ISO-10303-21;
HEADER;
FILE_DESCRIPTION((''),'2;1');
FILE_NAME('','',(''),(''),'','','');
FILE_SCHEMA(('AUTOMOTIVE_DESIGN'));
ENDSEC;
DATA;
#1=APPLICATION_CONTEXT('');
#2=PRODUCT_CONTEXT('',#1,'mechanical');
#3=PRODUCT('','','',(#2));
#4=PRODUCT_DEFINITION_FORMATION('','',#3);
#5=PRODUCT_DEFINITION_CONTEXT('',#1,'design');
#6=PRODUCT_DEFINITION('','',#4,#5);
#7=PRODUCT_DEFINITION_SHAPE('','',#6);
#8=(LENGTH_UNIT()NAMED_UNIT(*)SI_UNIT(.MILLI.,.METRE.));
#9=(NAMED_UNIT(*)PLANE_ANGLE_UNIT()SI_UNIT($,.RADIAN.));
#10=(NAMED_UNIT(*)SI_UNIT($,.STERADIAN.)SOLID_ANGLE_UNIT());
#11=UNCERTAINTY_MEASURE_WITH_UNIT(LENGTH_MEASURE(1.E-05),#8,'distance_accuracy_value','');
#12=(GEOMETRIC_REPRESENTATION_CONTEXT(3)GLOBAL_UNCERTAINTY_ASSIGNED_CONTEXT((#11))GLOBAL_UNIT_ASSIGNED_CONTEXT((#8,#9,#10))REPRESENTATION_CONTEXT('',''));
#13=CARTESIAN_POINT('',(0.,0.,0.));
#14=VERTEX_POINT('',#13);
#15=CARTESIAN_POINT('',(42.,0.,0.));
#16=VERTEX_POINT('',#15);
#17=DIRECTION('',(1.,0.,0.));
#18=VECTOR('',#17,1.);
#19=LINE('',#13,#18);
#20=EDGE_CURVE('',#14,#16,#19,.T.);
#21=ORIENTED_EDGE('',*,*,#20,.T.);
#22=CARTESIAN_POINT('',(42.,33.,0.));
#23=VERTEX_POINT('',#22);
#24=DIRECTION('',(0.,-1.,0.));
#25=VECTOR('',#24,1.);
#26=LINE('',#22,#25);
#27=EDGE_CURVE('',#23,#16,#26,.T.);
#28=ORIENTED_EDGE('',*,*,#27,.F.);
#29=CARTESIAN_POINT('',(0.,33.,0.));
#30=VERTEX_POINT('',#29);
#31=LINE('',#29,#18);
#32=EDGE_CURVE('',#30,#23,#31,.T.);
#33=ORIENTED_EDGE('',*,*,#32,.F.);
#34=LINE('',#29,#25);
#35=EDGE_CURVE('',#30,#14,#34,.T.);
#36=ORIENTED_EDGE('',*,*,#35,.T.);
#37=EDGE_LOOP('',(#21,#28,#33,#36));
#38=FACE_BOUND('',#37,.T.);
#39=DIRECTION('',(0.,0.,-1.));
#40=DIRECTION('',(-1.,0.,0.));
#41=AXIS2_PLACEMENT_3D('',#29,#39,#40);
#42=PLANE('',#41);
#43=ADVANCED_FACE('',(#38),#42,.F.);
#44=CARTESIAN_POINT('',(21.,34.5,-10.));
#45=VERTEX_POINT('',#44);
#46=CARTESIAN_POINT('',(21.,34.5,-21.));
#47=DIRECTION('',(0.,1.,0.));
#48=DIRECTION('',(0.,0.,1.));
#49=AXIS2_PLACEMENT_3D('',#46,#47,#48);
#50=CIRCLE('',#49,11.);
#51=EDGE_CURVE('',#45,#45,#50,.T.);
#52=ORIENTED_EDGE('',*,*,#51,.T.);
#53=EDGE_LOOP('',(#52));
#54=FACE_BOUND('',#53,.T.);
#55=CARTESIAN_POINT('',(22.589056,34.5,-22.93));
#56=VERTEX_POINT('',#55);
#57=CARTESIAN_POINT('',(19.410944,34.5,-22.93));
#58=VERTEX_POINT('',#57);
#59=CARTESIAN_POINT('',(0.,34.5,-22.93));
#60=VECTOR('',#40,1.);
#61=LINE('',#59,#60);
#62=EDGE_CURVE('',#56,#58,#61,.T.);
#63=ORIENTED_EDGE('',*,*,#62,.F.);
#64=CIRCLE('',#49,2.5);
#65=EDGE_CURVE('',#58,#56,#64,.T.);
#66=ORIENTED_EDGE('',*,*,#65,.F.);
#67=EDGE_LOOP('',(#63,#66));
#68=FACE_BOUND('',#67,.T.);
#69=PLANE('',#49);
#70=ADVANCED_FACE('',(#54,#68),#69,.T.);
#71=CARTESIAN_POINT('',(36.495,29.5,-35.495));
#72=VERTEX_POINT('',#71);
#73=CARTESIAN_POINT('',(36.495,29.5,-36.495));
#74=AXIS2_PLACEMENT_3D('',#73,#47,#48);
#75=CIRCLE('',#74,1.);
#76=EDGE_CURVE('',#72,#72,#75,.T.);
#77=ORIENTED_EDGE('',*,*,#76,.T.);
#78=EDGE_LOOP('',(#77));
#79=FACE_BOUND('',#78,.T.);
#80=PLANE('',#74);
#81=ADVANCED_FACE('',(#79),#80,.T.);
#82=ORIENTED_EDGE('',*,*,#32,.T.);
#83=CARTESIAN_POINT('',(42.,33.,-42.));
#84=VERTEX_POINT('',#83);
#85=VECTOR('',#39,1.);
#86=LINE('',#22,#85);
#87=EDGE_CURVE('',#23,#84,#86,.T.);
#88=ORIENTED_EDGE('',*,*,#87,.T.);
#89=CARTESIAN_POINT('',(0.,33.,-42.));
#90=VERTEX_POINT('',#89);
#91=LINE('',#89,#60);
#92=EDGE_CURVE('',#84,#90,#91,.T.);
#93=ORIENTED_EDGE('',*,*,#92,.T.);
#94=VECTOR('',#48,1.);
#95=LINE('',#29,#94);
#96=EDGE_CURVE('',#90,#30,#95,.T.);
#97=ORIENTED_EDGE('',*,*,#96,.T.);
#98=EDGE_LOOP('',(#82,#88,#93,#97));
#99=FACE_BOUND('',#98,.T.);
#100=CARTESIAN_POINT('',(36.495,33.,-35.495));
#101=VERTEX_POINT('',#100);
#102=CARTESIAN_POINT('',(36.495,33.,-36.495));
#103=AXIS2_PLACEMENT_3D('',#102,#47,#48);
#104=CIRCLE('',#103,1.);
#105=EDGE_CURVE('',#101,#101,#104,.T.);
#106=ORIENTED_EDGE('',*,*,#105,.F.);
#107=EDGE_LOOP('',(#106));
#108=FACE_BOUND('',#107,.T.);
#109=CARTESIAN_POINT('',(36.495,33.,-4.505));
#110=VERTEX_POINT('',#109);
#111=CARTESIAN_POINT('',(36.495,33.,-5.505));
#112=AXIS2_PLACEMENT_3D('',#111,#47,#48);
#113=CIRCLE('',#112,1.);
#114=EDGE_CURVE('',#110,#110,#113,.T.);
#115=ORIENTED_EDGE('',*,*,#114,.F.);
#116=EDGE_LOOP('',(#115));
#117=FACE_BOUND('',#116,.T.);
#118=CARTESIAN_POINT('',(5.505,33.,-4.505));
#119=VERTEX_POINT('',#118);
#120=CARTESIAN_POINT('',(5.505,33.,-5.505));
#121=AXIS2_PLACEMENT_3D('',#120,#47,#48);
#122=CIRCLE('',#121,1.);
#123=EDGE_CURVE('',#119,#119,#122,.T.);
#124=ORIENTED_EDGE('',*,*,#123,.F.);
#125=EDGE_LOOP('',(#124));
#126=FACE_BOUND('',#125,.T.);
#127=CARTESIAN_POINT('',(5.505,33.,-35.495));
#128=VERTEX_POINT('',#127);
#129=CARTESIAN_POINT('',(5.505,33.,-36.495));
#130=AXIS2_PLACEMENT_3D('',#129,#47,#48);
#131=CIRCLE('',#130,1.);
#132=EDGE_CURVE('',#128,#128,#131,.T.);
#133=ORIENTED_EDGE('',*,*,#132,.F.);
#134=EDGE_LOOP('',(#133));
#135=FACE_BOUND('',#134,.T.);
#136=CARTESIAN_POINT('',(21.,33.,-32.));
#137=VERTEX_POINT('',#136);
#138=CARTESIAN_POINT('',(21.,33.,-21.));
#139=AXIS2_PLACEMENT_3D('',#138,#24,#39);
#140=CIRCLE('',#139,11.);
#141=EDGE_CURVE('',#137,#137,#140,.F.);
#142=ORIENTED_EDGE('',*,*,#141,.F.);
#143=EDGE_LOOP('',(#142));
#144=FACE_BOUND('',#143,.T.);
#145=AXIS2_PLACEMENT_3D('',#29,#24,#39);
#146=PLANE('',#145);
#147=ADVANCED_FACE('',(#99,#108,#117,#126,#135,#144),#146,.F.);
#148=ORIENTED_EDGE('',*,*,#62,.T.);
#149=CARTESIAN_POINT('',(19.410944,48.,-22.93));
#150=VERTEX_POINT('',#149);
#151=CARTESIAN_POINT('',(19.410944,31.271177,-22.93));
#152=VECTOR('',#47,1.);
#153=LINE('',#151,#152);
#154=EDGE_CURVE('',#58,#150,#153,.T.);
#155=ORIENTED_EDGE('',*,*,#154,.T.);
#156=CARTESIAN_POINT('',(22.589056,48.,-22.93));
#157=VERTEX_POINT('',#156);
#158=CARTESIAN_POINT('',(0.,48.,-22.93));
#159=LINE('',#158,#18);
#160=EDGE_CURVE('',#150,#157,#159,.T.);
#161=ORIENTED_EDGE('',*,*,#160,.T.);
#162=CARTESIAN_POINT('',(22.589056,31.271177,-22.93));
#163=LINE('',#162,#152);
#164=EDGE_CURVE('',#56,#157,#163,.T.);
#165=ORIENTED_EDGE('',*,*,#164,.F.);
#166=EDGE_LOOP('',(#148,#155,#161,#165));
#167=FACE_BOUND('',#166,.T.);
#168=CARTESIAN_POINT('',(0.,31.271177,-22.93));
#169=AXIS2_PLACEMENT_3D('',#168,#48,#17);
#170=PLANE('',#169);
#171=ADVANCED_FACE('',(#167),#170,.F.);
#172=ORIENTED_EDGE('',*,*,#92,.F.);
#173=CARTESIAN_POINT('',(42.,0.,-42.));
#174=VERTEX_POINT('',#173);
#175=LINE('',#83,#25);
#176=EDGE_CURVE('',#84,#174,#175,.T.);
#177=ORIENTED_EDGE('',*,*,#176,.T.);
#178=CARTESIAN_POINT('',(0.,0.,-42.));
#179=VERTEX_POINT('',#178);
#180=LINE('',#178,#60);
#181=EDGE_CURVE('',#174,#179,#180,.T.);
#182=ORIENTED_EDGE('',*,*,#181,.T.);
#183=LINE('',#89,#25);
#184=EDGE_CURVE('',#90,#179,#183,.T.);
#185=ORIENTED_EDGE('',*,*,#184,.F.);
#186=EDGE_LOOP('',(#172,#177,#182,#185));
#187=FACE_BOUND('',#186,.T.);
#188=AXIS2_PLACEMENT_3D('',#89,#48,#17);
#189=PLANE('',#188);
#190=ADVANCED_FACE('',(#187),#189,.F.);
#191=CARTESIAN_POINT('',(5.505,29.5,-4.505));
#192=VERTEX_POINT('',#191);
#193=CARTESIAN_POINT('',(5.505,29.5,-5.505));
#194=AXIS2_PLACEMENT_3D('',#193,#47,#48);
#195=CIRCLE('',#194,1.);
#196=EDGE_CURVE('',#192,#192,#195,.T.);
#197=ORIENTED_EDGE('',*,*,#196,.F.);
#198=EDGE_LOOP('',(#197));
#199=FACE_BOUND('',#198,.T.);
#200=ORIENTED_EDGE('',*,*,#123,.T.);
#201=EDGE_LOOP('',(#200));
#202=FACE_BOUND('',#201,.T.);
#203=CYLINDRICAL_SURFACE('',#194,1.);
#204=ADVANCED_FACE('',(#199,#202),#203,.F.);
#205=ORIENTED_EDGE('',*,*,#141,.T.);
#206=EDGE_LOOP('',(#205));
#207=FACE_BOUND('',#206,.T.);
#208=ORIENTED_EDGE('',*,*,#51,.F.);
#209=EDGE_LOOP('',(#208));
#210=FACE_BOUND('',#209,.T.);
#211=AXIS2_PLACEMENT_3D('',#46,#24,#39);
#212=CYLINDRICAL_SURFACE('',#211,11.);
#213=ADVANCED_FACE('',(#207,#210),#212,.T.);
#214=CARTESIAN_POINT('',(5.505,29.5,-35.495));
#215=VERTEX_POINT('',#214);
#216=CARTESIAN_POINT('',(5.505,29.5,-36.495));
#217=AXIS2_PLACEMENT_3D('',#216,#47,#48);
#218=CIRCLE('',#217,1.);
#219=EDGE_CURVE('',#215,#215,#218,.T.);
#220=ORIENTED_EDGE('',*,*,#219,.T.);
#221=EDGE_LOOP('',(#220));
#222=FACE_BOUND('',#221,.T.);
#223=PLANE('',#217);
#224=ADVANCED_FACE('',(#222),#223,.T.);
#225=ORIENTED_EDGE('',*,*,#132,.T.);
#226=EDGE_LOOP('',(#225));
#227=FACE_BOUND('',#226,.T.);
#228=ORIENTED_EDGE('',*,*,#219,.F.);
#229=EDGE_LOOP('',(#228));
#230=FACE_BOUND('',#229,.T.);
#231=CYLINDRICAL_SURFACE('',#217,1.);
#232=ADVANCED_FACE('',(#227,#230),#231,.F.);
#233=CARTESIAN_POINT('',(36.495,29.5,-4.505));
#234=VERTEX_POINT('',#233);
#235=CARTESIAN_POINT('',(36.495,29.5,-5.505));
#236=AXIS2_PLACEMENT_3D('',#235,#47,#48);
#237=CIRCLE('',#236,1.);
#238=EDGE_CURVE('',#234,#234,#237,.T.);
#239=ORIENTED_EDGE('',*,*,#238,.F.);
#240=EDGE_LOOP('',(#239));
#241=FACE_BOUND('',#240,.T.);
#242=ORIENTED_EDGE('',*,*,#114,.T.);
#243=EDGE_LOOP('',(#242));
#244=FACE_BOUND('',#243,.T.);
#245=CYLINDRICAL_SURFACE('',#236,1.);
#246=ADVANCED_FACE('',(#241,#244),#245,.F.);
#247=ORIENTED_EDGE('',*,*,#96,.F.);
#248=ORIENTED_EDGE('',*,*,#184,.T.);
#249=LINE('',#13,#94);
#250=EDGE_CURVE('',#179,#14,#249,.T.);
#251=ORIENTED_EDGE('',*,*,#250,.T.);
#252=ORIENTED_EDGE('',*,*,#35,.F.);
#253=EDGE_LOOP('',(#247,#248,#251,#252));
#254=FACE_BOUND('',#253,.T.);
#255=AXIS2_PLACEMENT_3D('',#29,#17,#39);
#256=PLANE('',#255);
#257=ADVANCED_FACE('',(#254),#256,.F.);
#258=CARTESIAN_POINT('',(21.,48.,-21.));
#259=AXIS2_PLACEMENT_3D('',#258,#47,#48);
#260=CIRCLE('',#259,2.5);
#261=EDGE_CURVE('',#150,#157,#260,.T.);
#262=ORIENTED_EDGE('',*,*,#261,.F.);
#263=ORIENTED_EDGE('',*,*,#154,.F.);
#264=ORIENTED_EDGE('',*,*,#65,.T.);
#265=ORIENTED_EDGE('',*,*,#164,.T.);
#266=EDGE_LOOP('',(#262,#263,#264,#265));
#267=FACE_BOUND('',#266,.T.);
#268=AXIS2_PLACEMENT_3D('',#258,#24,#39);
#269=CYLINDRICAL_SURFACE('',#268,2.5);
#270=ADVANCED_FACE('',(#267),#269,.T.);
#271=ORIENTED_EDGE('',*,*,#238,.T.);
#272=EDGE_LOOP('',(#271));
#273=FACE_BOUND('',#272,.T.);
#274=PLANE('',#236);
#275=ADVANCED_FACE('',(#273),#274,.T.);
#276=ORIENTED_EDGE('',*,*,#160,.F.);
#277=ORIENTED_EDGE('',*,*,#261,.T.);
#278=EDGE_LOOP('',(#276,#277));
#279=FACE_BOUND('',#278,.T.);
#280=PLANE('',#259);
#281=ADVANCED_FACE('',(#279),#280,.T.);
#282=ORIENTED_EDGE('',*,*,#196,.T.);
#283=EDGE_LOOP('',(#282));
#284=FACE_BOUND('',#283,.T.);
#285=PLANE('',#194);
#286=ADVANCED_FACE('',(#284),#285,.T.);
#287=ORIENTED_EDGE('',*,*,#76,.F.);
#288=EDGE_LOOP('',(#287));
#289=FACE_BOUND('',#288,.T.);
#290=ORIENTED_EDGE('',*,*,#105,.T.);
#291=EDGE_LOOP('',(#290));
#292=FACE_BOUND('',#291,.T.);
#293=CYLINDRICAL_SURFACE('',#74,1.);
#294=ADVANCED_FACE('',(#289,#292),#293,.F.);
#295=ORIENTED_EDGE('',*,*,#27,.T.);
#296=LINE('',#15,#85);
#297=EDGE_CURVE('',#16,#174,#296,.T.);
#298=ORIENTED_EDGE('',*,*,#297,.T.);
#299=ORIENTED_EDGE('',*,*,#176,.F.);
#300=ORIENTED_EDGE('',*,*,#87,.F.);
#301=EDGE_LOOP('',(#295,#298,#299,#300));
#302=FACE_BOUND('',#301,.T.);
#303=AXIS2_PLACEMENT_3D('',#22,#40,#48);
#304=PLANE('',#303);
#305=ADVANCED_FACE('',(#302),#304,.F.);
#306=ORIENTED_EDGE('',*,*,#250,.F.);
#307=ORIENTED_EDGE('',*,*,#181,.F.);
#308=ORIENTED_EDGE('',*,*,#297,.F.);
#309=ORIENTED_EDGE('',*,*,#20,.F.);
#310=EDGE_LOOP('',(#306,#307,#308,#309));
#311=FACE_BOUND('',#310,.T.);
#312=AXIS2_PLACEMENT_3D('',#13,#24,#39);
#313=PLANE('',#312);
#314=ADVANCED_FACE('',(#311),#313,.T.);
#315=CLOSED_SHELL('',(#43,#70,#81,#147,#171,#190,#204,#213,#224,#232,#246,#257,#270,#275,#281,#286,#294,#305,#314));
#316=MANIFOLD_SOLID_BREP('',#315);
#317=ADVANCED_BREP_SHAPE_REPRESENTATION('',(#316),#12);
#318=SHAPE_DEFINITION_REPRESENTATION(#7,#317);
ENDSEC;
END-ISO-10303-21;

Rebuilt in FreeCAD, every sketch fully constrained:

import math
import FreeCAD as App
import Part
import Sketcher

V = App.Vector


def add_polygon(sketch, points):
    """Adds a closed chain of lines whose ends are joined by coincident constraints."""
    first, n = sketch.GeometryCount, len(points)
    for a, b in zip(points, points[1:] + points[:1]):
        sketch.addGeometry(Part.LineSegment(App.Vector(*a, 0), App.Vector(*b, 0)), False)
    for i in range(n):
        sketch.addConstraint(Sketcher.Constraint("Coincident", first + i, 2, first + (i + 1) % n, 1))

doc = App.newDocument("Part")
body = doc.addObject("PartDesign::Body", "Body")

# Sketch on XZ plane
sketch1 = body.newObject("Sketcher::SketchObject", "Sketch")
sketch1.AttachmentSupport = (doc.getObject("XZ_Plane"), [""])
sketch1.MapMode = "FlatFace"
add_polygon(sketch1, [(0, -42), (0, 0), (42, 0), (42, -42)])  # lines 0-3
sketch1.addConstraint(Sketcher.Constraint("Vertical", 0))
sketch1.addConstraint(Sketcher.Constraint("Horizontal", 1))
sketch1.addConstraint(Sketcher.Constraint("Vertical", 2))
sketch1.addConstraint(Sketcher.Constraint("Horizontal", 3))
sketch1.addConstraint(Sketcher.Constraint("Coincident", 0, 2, -1, 1))
sketch1.addConstraint(Sketcher.Constraint("Equal", 3, 0))
sketch1.addConstraint(Sketcher.Constraint("DistanceX", 1, 1, 1, 2, 42.0))
pad1 = body.newObject("PartDesign::Pad", "Pad")
pad1.Profile = sketch1
pad1.Length = 33
pad1.Reversed = True

# Sketch on XZ plane
sketch2 = body.newObject("Sketcher::SketchObject", "Sketch001")
sketch2.AttachmentSupport = (doc.getObject("XZ_Plane"), [""])
sketch2.MapMode = "FlatFace"
sketch2.AttachmentOffset = App.Placement(V(0, 0, -33), App.Rotation())
sketch2.addGeometry(Part.Circle(V(5.5, -36.5, 0), V(0, 0, 1), 1), False)
sketch2.addGeometry(Part.Circle(V(36.5, -36.5, 0), V(0, 0, 1), 1), False)
sketch2.addGeometry(Part.Circle(V(36.5, -5.5, 0), V(0, 0, 1), 1), False)
sketch2.addGeometry(Part.Circle(V(5.5, -5.5, 0), V(0, 0, 1), 1), False)
sketch2.addConstraint(Sketcher.Constraint("Equal", 0, 1))
sketch2.addConstraint(Sketcher.Constraint("Equal", 1, 2))
sketch2.addConstraint(Sketcher.Constraint("Equal", 2, 3))
sketch2.addConstraint(Sketcher.Constraint("Horizontal", 0, 3, 1, 3))
sketch2.addConstraint(Sketcher.Constraint("Horizontal", 2, 3, 3, 3))
sketch2.addConstraint(Sketcher.Constraint("Vertical", 1, 3, 2, 3))
sketch2.addConstraint(Sketcher.Constraint("Vertical", 0, 3, 3, 3))
sketch2.addConstraint(Sketcher.Constraint("Diameter", 0, 2.0))
sketch2.addConstraint(Sketcher.Constraint("DistanceX", 0, 3, 1, 3, 30.99))
sketch2.addConstraint(Sketcher.Constraint("DistanceY", 1, 3, 2, 3, 30.99))
sketch2.addConstraint(Sketcher.Constraint("DistanceX", -1, 1, 0, 3, 5.505))
sketch2.addConstraint(Sketcher.Constraint("DistanceY", 0, 3, -1, 1, 36.495))
pocket1 = body.newObject("PartDesign::Pocket", "Pocket")
pocket1.Profile = sketch2
pocket1.Length = 3.5
pocket1.Reversed = True

# Sketch on XZ plane
sketch3 = body.newObject("Sketcher::SketchObject", "Sketch002")
sketch3.AttachmentSupport = (doc.getObject("XZ_Plane"), [""])
sketch3.MapMode = "FlatFace"
sketch3.AttachmentOffset = App.Placement(V(0, 0, -33), App.Rotation())
sketch3.addGeometry(Part.Circle(V(21, -21, 0), V(0, 0, 1), 11), False)
sketch3.addConstraint(Sketcher.Constraint("Diameter", 0, 22.0))
sketch3.addConstraint(Sketcher.Constraint("DistanceX", -1, 1, 0, 3, 21.0))
sketch3.addConstraint(Sketcher.Constraint("DistanceY", 0, 3, -1, 1, 21.0))
pad2 = body.newObject("PartDesign::Pad", "Pad001")
pad2.Profile = sketch3
pad2.Length = 1.5
pad2.Reversed = True

# Sketch on XZ plane
sketch4 = body.newObject("Sketcher::SketchObject", "Sketch003")
sketch4.AttachmentSupport = (doc.getObject("XZ_Plane"), [""])
sketch4.MapMode = "FlatFace"
sketch4.AttachmentOffset = App.Placement(V(0, 0, -34.5), App.Rotation())
sketch4.addGeometry(Part.Circle(V(21, -21, 0), V(0, 0, 1), 2.5), False)
sketch4.addConstraint(Sketcher.Constraint("Diameter", 0, 5.0))
sketch4.addConstraint(Sketcher.Constraint("DistanceX", -1, 1, 0, 3, 21.0))
sketch4.addConstraint(Sketcher.Constraint("DistanceY", 0, 3, -1, 1, 21.0))
pad3 = body.newObject("PartDesign::Pad", "Pad002")
pad3.Profile = sketch4
pad3.Length = 13.5
pad3.Reversed = True

# Sketch on XZ plane
sketch5 = body.newObject("Sketcher::SketchObject", "Sketch004")
sketch5.AttachmentSupport = (doc.getObject("XZ_Plane"), [""])
sketch5.MapMode = "FlatFace"
sketch5.AttachmentOffset = App.Placement(V(0, 0, -34.5), App.Rotation())
sketch5.addGeometry(Part.LineSegment(V(19.4, -22.9, 0), V(22.6, -22.9, 0)), False)
sketch5.addGeometry(Part.ArcOfCircle(Part.Circle(V(21, -21, 0), V(0, 0, 1), 2.5), math.radians(-129), math.radians(-51)), False)
sketch5.addConstraint(Sketcher.Constraint("Coincident", 0, 1, 1, 1))
sketch5.addConstraint(Sketcher.Constraint("Coincident", 1, 2, 0, 2))
sketch5.addConstraint(Sketcher.Constraint("Horizontal", 0))
sketch5.addConstraint(Sketcher.Constraint("Radius", 1, 2.5))
sketch5.addConstraint(Sketcher.Constraint("DistanceX", -1, 1, 1, 3, 21.0))
sketch5.addConstraint(Sketcher.Constraint("DistanceY", 1, 3, -1, 1, 21.0))
sketch5.addConstraint(Sketcher.Constraint("DistanceY", 0, 1, -1, 1, 22.93))
pocket2 = body.newObject("PartDesign::Pocket", "Pocket001")
pocket2.Profile = sketch5
pocket2.Length = 13.5

doc.recompute()
